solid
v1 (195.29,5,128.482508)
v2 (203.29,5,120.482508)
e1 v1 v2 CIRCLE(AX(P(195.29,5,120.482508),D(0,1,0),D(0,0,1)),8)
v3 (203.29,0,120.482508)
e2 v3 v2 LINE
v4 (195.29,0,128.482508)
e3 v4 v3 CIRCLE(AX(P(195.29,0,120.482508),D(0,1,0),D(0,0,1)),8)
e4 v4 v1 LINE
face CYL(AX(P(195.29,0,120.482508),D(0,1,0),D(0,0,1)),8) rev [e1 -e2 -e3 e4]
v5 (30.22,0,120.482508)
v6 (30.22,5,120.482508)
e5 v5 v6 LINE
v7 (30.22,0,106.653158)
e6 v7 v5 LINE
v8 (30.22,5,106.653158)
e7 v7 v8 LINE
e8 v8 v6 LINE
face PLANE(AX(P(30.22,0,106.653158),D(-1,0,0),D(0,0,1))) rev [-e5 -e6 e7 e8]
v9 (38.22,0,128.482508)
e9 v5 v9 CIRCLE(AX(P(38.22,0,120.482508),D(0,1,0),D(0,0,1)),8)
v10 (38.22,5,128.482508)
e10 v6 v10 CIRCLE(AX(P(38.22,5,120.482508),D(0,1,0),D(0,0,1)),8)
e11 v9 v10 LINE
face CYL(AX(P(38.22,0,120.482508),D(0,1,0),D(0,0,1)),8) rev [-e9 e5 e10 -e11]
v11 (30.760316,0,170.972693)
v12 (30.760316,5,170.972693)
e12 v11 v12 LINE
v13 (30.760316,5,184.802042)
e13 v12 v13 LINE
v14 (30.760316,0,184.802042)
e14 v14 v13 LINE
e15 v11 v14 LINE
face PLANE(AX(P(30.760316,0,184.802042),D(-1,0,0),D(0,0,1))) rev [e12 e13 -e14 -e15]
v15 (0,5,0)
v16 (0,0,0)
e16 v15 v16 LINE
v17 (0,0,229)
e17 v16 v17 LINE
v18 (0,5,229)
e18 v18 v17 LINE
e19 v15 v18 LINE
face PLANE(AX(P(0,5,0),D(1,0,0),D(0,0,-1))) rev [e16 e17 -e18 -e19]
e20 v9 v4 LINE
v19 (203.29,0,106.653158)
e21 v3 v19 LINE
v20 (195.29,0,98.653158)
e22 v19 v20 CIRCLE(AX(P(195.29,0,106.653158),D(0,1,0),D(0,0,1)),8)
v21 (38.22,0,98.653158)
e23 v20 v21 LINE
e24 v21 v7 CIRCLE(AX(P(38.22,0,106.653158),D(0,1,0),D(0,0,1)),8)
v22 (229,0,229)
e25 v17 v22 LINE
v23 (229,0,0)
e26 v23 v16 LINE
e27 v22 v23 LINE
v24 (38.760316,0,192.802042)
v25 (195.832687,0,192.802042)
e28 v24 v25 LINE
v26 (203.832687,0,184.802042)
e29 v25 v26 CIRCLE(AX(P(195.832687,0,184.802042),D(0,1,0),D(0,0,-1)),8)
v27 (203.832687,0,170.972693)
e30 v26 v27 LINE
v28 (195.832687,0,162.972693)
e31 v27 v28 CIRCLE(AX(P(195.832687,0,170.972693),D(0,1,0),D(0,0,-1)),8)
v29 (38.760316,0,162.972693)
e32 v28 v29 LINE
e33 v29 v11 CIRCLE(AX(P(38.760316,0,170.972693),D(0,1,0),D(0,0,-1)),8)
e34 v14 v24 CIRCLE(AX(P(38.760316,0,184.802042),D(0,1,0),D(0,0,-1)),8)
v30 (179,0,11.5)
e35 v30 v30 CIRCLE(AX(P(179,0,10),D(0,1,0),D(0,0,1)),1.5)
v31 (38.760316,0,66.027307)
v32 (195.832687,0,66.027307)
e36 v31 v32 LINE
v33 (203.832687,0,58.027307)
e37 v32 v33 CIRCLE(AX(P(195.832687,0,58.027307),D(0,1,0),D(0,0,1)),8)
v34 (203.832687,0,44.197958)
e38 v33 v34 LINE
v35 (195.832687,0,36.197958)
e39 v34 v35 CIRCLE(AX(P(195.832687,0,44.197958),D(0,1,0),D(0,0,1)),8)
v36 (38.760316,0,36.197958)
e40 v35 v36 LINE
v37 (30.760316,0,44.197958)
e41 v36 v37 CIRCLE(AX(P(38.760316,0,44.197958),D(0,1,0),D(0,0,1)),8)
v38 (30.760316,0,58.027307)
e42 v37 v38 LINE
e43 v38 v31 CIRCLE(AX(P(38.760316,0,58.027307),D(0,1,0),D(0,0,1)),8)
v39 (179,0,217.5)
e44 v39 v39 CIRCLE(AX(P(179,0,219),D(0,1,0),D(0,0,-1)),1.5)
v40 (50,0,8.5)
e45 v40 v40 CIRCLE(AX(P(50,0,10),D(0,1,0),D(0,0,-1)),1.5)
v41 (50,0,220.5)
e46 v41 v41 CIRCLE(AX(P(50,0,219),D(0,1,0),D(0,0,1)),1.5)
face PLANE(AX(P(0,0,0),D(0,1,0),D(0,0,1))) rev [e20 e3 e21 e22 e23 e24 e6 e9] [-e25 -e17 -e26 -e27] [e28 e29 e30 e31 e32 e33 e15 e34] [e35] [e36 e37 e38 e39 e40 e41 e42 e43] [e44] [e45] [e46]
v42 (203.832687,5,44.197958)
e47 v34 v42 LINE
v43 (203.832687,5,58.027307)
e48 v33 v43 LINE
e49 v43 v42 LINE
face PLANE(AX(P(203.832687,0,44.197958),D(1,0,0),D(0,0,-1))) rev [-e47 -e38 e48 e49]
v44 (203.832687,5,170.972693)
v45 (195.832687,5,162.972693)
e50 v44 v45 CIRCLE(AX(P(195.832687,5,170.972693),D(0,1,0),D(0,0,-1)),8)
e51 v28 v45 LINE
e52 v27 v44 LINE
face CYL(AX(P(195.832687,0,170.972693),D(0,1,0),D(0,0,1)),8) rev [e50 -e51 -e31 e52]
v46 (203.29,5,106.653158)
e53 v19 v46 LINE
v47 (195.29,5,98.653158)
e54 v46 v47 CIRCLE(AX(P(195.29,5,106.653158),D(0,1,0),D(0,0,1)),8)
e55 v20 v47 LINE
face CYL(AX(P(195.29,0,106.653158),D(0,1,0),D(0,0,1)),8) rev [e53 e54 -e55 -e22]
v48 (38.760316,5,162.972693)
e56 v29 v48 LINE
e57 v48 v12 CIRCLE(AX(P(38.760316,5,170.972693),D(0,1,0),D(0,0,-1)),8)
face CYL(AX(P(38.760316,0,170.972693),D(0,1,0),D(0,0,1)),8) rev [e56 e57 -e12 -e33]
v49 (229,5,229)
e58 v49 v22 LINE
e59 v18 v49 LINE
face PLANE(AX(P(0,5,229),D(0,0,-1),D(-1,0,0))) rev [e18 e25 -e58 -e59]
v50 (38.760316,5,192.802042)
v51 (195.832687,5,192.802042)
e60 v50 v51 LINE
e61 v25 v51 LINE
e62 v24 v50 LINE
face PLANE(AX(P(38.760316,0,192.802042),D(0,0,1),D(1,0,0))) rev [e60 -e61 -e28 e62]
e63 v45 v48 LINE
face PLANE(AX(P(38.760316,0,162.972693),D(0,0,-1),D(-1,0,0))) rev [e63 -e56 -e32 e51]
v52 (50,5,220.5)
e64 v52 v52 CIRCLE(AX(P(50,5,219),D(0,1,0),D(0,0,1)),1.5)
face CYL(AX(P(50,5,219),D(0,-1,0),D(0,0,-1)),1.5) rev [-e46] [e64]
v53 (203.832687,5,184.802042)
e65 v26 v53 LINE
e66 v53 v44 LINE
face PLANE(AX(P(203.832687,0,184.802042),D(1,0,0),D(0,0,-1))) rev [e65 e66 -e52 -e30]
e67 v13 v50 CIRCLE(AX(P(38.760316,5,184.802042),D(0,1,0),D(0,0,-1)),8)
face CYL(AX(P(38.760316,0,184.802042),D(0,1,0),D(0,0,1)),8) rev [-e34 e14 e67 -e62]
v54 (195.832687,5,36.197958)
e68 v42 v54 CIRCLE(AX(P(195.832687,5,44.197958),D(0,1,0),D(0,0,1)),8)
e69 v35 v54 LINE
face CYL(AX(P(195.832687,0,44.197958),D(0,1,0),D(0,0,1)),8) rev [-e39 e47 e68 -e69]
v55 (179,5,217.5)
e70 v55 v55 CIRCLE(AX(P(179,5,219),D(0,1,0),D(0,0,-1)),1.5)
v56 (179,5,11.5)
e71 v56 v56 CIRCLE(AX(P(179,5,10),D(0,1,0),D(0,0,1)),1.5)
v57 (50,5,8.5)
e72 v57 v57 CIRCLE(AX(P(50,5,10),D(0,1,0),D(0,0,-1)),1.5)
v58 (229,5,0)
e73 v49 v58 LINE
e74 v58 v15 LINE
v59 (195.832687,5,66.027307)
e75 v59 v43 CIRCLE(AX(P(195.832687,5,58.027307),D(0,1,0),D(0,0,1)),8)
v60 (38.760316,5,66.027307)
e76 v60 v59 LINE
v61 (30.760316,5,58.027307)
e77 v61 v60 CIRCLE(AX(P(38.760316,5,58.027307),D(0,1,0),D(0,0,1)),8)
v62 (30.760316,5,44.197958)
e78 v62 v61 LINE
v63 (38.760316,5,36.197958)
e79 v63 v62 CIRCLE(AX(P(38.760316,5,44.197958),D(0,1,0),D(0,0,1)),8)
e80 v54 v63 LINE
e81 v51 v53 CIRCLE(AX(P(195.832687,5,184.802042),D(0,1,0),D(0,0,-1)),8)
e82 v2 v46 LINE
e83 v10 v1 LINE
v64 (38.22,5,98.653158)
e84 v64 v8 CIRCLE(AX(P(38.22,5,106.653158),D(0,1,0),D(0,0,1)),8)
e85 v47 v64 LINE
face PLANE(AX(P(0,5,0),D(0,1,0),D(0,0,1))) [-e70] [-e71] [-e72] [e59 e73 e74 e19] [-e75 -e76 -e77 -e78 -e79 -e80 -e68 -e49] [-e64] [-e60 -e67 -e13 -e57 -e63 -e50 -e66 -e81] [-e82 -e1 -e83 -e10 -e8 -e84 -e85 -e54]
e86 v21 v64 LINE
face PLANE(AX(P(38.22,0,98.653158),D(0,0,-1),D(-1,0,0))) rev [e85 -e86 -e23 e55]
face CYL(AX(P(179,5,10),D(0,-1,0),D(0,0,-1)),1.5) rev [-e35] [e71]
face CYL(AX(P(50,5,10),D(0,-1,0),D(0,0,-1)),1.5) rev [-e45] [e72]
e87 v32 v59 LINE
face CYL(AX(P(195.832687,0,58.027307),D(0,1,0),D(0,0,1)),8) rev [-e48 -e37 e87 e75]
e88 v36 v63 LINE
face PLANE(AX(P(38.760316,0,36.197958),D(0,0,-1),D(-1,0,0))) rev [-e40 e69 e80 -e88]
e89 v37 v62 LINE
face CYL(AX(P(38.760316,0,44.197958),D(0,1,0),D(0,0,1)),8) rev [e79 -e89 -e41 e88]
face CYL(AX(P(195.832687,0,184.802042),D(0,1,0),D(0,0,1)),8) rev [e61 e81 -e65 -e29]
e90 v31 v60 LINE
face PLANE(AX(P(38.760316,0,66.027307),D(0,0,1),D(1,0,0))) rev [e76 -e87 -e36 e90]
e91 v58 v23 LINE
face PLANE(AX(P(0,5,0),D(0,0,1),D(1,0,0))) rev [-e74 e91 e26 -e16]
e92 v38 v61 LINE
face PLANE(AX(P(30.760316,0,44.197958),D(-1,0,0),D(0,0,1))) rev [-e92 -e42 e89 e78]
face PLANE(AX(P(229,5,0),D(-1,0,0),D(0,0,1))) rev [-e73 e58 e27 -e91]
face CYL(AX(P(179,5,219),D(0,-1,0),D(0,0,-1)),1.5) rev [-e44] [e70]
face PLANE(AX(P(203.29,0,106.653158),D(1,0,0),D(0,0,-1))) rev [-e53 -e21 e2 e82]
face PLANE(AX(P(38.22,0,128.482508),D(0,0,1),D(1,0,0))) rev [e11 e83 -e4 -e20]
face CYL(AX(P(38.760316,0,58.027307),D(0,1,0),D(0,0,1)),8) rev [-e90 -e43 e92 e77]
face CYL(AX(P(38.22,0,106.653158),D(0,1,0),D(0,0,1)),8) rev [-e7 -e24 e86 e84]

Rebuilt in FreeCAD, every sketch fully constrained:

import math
import FreeCAD as App
import Part
import Sketcher
Q = App.Units.Quantity


def add_polygon(sketch, points):
    """Adds a closed chain of lines whose ends are joined by coincident constraints."""
    first, n = sketch.GeometryCount, len(points)
    for a, b in zip(points, points[1:] + points[:1]):
        sketch.addGeometry(Part.LineSegment(App.Vector(*a, 0), App.Vector(*b, 0)), False)
    for i in range(n):
        sketch.addConstraint(Sketcher.Constraint("Coincident", first + i, 2, first + (i + 1) % n, 1))

doc = App.newDocument("Part")
body = doc.addObject("PartDesign::Body", "Body")

# Sketch on XZ plane
sketch1 = body.newObject("Sketcher::SketchObject", "Sketch")
sketch1.AttachmentSupport = (doc.getObject("XZ_Plane"), [""])
sketch1.MapMode = "FlatFace"
add_polygon(sketch1, [(0, 0), (0, 229), (229, 229), (229, 0)])  # lines 0-3
sketch1.addGeometry(Part.Circle(App.Vector(50, 219, 0), App.Vector(0, 0, 1), 1.5), False)  # 4
sketch1.addGeometry(Part.Circle(App.Vector(179, 219, 0), App.Vector(0, 0, 1), 1.5), False)  # 5
sketch1.addGeometry(Part.Circle(App.Vector(50, 10, 0), App.Vector(0, 0, 1), 1.5), False)  # 6
sketch1.addGeometry(Part.Circle(App.Vector(179, 10, 0), App.Vector(0, 0, 1), 1.5), False)  # 7
sketch1.addConstraint([
    Sketcher.Constraint("Vertical", 0),
    Sketcher.Constraint("Horizontal", 1),
    Sketcher.Constraint("Vertical", 2),
    Sketcher.Constraint("Horizontal", 3),
    Sketcher.Constraint("Coincident", 3, 2, -1, 1),
    Sketcher.Constraint("Equal", 4, 5),
    Sketcher.Constraint("Equal", 5, 6),
    Sketcher.Constraint("Equal", 6, 7),
    Sketcher.Constraint("Horizontal", 4, 3, 5, 3),
    Sketcher.Constraint("Horizontal", 6, 3, 7, 3),
    Sketcher.Constraint("Vertical", 4, 3, 6, 3),
    Sketcher.Constraint("Vertical", 5, 3, 7, 3),
    Sketcher.Constraint("Equal", 3, 0),
    Sketcher.Constraint("Diameter", 4, Q("3 mm")),
    Sketcher.Constraint("DistanceX", 1, 1, 1, 2, Q("229 mm")),
    Sketcher.Constraint("DistanceX", -1, 1, 4, 3, Q("50 mm")),
    Sketcher.Constraint("DistanceY", -1, 1, 4, 3, Q("219 mm")),
    Sketcher.Constraint("DistanceX", -1, 1, 5, 3, Q("179 mm")),
    Sketcher.Constraint("DistanceY", -1, 1, 6, 3, Q("10 mm")),
])
pad1 = body.newObject("PartDesign::Pad", "Pad")
pad1.Profile = sketch1
pad1.Length = 5
pad1.Reversed = True

# Sketch on XZ plane
sketch2 = body.newObject("Sketcher::SketchObject", "Sketch001")
sketch2.AttachmentSupport = (doc.getObject("XZ_Plane"), [""])
sketch2.MapMode = "FlatFace"
sketch2.AttachmentOffset = App.Placement(App.Vector(0, 0, -5), App.Rotation())
sketch2.addGeometry([
    Part.LineSegment(App.Vector(196, 36, 0), App.Vector(39, 36, 0)),  # 0
    Part.ArcOfCircle(Part.Circle(App.Vector(39, 44, 0), App.Vector(0, 0, 1), 8), math.radians(180), math.radians(270)),  # 1
    Part.LineSegment(App.Vector(31, 44, 0), App.Vector(31, 58, 0)),  # 2
    Part.ArcOfCircle(Part.Circle(App.Vector(39, 58, 0), App.Vector(0, 0, 1), 8), math.radians(90), math.radians(180)),  # 3
    Part.LineSegment(App.Vector(39, 66, 0), App.Vector(196, 66, 0)),  # 4
    Part.ArcOfCircle(Part.Circle(App.Vector(196, 58, 0), App.Vector(0, 0, 1), 8), math.radians(0), math.radians(90)),  # 5
    Part.LineSegment(App.Vector(204, 58, 0), App.Vector(204, 44, 0)),  # 6
    Part.ArcOfCircle(Part.Circle(App.Vector(196, 44, 0), App.Vector(0, 0, 1), 8), math.radians(-90), math.radians(0)),  # 7
    Part.LineSegment(App.Vector(204, 185, 0), App.Vector(204, 171, 0)),  # 8
    Part.ArcOfCircle(Part.Circle(App.Vector(196, 171, 0), App.Vector(0, 0, 1), 8), math.radians(-90), math.radians(0)),  # 9
    Part.LineSegment(App.Vector(196, 163, 0), App.Vector(39, 163, 0)),  # 10
    Part.ArcOfCircle(Part.Circle(App.Vector(39, 171, 0), App.Vector(0, 0, 1), 8), math.radians(180), math.radians(270)),  # 11
    Part.LineSegment(App.Vector(31, 171, 0), App.Vector(31, 185, 0)),  # 12
    Part.ArcOfCircle(Part.Circle(App.Vector(39, 185, 0), App.Vector(0, 0, 1), 8), math.radians(90), math.radians(180)),  # 13
    Part.LineSegment(App.Vector(39, 193, 0), App.Vector(196, 193, 0)),  # 14
    Part.ArcOfCircle(Part.Circle(App.Vector(196, 185, 0), App.Vector(0, 0, 1), 8), math.radians(0), math.radians(90)),  # 15
    Part.LineSegment(App.Vector(195, 99, 0), App.Vector(38, 99, 0)),  # 16
    Part.ArcOfCircle(Part.Circle(App.Vector(38, 107, 0), App.Vector(0, 0, 1), 8), math.radians(180), math.radians(270)),  # 17
    Part.LineSegment(App.Vector(30, 107, 0), App.Vector(30, 120, 0)),  # 18
    Part.ArcOfCircle(Part.Circle(App.Vector(38, 120, 0), App.Vector(0, 0, 1), 8), math.radians(90), math.radians(180)),  # 19
    Part.LineSegment(App.Vector(38, 128, 0), App.Vector(195, 128, 0)),  # 20
    Part.ArcOfCircle(Part.Circle(App.Vector(195, 120, 0), App.Vector(0, 0, 1), 8), math.radians(0), math.radians(90)),  # 21
    Part.LineSegment(App.Vector(203, 120, 0), App.Vector(203, 107, 0)),  # 22
    Part.ArcOfCircle(Part.Circle(App.Vector(195, 107, 0), App.Vector(0, 0, 1), 8), math.radians(-90), math.radians(0)),  # 23
], False)
sketch2.addConstraint([
    Sketcher.Constraint("Tangent", 0, 2, 1, 2),
    Sketcher.Constraint("Tangent", 1, 1, 2, 1),
    Sketcher.Constraint("Tangent", 2, 2, 3, 2),
    Sketcher.Constraint("Tangent", 3, 1, 4, 1),
    Sketcher.Constraint("Tangent", 4, 2, 5, 2),
    Sketcher.Constraint("Tangent", 5, 1, 6, 1),
    Sketcher.Constraint("Tangent", 6, 2, 7, 2),
    Sketcher.Constraint("Tangent", 7, 1, 0, 1),
    Sketcher.Constraint("Tangent", 8, 2, 9, 2),
    Sketcher.Constraint("Tangent", 9, 1, 10, 1),
    Sketcher.Constraint("Tangent", 10, 2, 11, 2),
    Sketcher.Constraint("Tangent", 11, 1, 12, 1),
    Sketcher.Constraint("Tangent", 12, 2, 13, 2),
    Sketcher.Constraint("Tangent", 13, 1, 14, 1),
    Sketcher.Constraint("Tangent", 14, 2, 15, 2),
    Sketcher.Constraint("Tangent", 15, 1, 8, 1),
    Sketcher.Constraint("Tangent", 16, 2, 17, 2),
    Sketcher.Constraint("Tangent", 17, 1, 18, 1),
    Sketcher.Constraint("Tangent", 18, 2, 19, 2),
    Sketcher.Constraint("Tangent", 19, 1, 20, 1),
    Sketcher.Constraint("Tangent", 20, 2, 21, 2),
    Sketcher.Constraint("Tangent", 21, 1, 22, 1),
    Sketcher.Constraint("Tangent", 22, 2, 23, 2),
    Sketcher.Constraint("Tangent", 23, 1, 16, 1),
    Sketcher.Constraint("Horizontal", 0),
    Sketcher.Constraint("Vertical", 2),
    Sketcher.Constraint("Horizontal", 4),
    Sketcher.Constraint("Vertical", 6),
    Sketcher.Constraint("Vertical", 8),
    Sketcher.Constraint("Horizontal", 10),
    Sketcher.Constraint("Vertical", 12),
    Sketcher.Constraint("Horizontal", 14),
    Sketcher.Constraint("Horizontal", 16),
    Sketcher.Constraint("Vertical", 18),
    Sketcher.Constraint("Horizontal", 20),
    Sketcher.Constraint("Vertical", 22),
    Sketcher.Constraint("Equal", 1, 3),
    Sketcher.Constraint("Equal", 3, 5),
    Sketcher.Constraint("Equal", 5, 7),
    Sketcher.Constraint("Equal", 7, 9),
    Sketcher.Constraint("Equal", 9, 11),
    Sketcher.Constraint("Equal", 11, 13),
    Sketcher.Constraint("Equal", 13, 15),
    Sketcher.Constraint("Equal", 15, 17),
    Sketcher.Constraint("Equal", 17, 19),
    Sketcher.Constraint("Equal", 19, 21),
    Sketcher.Constraint("Equal", 21, 23),
    Sketcher.Constraint("Vertical", 7, 3, 9, 3),
    Sketcher.Constraint("Vertical", 3, 3, 11, 3),
    Sketcher.Constraint("Equal", 6, 8),
    Sketcher.Constraint("Equal", 12, 18),
    Sketcher.Constraint("Radius", 1, Q("8 mm")),
    Sketcher.Constraint("DistanceX", 16, 2, 16, 1, Q("157.07 mm")),
    Sketcher.Constraint("DistanceX", -1, 1, 17, 3, Q("38.22 mm")),
    Sketcher.Constraint("DistanceX", 0, 2, 0, 1, Q("157.072371 mm")),
    Sketcher.Constraint("DistanceY", 2, 1, 2, 2, Q("13.829349 mm")),
    Sketcher.Constraint("DistanceY", 1, 3, 17, 3, Q("62.4552 mm")),
    Sketcher.Constraint("DistanceY", -1, 1, 17, 3, Q("106.653158 mm")),
    Sketcher.Constraint("DistanceX", -1, 1, 1, 3, Q("38.760316 mm")),
    Sketcher.Constraint("DistanceY", -1, 1, 9, 3, Q("170.972693 mm")),
])
pocket1 = body.newObject("PartDesign::Pocket", "Pocket")
pocket1.Profile = sketch2
pocket1.Length = 5
pocket1.Reversed = True

doc.recompute()
